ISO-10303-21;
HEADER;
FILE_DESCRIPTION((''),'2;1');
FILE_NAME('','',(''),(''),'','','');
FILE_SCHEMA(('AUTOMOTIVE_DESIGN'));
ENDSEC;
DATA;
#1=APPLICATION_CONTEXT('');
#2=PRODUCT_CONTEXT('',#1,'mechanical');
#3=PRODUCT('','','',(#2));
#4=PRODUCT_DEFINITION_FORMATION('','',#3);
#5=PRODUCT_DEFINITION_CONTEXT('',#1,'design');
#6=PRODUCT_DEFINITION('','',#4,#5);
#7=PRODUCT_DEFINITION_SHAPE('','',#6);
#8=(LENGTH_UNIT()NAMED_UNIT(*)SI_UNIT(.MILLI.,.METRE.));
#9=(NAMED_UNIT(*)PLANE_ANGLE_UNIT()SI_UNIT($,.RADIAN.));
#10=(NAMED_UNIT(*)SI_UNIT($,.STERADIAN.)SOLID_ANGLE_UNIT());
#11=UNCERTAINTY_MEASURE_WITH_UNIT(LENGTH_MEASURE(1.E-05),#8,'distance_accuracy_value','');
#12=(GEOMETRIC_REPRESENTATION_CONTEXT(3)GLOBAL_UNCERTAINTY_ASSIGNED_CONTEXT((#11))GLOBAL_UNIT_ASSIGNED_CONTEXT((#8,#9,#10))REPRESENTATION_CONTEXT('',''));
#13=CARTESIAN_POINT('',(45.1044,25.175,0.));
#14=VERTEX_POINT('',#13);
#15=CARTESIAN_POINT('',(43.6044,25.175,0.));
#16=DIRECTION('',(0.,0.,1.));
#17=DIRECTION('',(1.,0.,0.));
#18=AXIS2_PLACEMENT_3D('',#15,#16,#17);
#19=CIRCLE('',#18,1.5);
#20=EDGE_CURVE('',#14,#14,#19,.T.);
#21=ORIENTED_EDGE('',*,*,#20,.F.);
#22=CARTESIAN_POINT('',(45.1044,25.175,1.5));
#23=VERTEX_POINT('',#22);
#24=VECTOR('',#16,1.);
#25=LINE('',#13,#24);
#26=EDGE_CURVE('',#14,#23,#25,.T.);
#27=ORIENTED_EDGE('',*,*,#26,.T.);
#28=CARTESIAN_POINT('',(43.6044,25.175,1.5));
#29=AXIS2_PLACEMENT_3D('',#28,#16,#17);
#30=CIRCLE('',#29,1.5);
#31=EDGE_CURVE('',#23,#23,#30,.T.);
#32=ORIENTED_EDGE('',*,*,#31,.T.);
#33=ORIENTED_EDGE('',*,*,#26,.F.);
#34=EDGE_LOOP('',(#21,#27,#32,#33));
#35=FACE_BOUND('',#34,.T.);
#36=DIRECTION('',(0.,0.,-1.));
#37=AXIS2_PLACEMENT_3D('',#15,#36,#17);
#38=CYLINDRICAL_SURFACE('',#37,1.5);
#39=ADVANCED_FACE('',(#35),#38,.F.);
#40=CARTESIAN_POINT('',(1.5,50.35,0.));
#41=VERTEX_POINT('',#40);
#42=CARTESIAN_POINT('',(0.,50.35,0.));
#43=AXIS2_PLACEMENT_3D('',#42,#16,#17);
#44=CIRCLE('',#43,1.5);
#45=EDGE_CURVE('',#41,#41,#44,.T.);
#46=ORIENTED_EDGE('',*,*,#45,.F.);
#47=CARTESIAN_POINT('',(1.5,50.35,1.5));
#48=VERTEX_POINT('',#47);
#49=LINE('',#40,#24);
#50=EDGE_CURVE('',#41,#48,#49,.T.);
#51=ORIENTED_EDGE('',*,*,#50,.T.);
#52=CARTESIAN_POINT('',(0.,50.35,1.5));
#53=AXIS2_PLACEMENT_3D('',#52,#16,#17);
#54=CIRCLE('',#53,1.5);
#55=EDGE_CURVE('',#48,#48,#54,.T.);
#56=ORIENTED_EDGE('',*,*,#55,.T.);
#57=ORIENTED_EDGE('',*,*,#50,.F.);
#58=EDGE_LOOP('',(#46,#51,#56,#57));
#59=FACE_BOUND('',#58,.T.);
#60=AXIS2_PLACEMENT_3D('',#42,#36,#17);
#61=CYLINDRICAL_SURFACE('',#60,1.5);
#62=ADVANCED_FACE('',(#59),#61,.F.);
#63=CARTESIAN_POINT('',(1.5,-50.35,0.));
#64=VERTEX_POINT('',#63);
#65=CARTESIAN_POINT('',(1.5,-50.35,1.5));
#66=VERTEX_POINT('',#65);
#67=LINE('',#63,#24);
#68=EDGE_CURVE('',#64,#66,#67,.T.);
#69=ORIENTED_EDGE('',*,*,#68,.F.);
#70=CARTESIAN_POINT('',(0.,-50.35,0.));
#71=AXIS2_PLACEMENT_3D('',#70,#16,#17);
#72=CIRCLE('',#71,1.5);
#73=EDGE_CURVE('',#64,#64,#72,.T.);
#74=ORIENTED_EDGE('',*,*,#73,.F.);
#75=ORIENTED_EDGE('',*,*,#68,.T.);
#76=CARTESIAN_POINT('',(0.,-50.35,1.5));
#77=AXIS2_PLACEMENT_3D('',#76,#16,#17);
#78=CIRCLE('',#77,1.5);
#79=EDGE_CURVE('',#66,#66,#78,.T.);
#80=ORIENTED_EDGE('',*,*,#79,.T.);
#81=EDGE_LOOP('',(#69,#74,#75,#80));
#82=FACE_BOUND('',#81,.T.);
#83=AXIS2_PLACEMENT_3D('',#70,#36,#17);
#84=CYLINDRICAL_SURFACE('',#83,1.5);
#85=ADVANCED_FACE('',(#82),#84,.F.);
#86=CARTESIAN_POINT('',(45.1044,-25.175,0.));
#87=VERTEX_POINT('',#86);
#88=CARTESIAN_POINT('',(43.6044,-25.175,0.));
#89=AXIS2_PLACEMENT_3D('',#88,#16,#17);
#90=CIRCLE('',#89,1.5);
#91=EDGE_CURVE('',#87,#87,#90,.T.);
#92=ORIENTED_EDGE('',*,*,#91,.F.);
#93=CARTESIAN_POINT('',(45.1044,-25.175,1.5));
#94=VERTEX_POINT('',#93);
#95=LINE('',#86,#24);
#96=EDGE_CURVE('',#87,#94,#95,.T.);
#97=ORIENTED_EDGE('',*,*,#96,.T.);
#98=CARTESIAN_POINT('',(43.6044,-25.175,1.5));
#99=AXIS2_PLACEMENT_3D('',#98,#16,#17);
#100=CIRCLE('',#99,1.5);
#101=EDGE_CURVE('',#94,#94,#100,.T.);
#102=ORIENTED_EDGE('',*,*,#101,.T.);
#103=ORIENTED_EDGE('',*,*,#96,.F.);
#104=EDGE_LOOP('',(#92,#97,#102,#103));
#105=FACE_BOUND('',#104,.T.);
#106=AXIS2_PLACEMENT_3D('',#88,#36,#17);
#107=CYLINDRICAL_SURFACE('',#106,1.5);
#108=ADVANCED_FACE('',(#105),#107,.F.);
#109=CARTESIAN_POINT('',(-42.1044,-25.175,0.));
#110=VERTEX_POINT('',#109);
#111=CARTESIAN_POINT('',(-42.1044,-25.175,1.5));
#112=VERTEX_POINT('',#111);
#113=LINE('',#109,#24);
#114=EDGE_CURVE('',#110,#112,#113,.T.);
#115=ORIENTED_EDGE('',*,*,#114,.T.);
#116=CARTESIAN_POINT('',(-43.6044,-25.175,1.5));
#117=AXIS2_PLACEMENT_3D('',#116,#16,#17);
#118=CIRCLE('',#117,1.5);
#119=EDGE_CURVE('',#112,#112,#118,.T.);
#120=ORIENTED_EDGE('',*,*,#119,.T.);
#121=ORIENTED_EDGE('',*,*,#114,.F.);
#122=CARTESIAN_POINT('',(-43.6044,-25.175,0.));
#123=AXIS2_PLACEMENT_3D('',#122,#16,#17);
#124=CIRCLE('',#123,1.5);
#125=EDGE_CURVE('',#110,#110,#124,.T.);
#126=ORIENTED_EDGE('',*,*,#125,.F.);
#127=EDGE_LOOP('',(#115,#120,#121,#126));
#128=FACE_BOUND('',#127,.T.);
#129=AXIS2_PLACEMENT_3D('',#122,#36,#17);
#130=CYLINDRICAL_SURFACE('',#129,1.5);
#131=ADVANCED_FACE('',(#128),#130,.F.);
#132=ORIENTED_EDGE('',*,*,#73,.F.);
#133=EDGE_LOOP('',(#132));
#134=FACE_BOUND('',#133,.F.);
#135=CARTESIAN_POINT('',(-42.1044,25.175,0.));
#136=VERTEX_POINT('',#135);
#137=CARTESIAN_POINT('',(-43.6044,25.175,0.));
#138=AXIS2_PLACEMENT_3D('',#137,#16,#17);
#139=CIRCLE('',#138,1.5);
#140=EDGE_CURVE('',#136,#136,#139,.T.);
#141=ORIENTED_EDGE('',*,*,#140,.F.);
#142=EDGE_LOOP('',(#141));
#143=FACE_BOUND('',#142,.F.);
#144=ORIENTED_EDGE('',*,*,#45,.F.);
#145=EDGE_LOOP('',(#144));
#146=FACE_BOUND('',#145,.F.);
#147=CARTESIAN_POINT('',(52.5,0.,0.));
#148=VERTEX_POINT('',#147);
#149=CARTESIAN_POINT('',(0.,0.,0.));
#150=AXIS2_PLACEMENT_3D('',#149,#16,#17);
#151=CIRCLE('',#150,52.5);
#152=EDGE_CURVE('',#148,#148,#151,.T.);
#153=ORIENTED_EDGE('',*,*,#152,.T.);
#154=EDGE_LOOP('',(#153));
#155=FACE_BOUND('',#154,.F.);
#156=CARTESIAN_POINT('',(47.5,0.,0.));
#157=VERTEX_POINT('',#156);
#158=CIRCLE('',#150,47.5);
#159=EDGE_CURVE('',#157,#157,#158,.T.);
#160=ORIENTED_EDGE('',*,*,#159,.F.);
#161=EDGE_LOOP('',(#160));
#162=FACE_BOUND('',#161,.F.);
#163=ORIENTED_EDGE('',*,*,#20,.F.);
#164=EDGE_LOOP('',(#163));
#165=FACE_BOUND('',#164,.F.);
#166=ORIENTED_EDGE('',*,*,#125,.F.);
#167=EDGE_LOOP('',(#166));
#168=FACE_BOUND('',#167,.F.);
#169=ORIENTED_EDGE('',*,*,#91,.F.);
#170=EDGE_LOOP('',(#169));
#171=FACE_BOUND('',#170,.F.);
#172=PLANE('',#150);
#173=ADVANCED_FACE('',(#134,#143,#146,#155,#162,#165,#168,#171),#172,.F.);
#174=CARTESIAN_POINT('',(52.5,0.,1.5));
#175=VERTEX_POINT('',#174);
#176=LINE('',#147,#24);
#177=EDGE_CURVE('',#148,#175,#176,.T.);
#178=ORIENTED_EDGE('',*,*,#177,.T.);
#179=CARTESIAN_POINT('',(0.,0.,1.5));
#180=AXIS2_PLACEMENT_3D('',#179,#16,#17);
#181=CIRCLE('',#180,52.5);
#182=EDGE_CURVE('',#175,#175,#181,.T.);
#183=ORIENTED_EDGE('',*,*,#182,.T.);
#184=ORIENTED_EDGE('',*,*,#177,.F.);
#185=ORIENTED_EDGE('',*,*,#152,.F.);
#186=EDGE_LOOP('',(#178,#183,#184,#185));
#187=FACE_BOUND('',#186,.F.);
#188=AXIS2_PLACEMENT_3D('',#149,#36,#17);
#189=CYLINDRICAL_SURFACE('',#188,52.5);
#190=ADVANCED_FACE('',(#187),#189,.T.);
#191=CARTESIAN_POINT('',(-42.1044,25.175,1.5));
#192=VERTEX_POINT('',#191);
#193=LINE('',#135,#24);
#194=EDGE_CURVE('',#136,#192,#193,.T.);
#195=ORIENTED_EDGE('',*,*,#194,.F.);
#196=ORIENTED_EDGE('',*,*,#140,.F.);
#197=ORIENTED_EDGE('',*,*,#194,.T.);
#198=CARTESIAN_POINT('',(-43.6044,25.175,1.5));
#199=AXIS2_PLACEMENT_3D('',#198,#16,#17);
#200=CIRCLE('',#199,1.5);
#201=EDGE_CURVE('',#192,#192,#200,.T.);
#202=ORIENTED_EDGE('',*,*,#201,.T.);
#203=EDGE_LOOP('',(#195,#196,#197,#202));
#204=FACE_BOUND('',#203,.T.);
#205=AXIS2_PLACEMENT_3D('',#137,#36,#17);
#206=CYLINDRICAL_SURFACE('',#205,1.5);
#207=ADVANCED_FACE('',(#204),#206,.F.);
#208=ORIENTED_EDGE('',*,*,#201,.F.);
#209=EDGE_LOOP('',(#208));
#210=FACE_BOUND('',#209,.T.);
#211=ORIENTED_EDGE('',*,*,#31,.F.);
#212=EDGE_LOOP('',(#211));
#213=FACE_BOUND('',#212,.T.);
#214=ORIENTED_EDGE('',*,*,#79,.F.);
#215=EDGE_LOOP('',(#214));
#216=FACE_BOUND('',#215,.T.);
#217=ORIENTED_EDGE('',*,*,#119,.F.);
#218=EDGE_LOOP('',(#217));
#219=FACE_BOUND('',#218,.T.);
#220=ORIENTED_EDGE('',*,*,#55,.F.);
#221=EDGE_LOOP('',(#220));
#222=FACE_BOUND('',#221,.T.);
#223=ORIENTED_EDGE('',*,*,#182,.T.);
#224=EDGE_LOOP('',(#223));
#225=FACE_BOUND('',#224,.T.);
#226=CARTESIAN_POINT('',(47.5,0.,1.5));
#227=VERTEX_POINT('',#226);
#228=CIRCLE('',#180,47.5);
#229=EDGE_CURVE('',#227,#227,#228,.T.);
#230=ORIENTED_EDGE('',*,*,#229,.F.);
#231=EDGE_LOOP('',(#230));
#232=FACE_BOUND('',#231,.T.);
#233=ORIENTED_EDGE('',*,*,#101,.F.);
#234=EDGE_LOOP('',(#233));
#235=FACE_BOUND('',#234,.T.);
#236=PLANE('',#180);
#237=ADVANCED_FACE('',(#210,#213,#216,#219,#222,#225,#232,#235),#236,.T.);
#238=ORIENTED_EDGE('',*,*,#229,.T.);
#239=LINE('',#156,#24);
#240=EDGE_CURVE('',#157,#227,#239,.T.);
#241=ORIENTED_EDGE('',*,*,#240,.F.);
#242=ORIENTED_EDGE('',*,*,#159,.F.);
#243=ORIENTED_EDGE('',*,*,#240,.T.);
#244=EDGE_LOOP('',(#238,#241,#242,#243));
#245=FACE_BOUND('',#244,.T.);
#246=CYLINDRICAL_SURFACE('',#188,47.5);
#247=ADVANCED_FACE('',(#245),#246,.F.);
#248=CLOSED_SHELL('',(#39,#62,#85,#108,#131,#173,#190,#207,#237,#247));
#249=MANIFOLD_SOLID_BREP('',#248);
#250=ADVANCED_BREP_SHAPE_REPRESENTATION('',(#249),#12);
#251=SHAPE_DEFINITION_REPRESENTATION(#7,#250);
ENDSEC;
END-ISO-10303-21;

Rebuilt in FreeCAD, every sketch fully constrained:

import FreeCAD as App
import Part
import Sketcher

doc = App.newDocument("Part")
body = doc.addObject("PartDesign::Body", "Body")

# Sketch on XY plane
sketch1 = doc.addObject("Sketcher::SketchObject", "Sketch")
body.addObject(sketch1)
sketch1.AttachmentSupport = (doc.XY_Plane, [""])
sketch1.MapMode = "FlatFace"
sketch1.addGeometry(Part.Circle(App.Vector(0, 0, 0), App.Vector(0, 0, 1), 52.5), False)
sketch1.addGeometry(Part.Circle(App.Vector(-43.6, -25.2, 0), App.Vector(0, 0, 1), 1.5), False)
sketch1.addGeometry(Part.Circle(App.Vector(0, -50.4, 0), App.Vector(0, 0, 1), 1.5), False)
sketch1.addGeometry(Part.Circle(App.Vector(43.6, -25.2, 0), App.Vector(0, 0, 1), 1.5), False)
sketch1.addGeometry(Part.Circle(App.Vector(-43.6, 25.2, 0), App.Vector(0, 0, 1), 1.5), False)
sketch1.addGeometry(Part.Circle(App.Vector(0, 0, 0), App.Vector(0, 0, 1), 47.5), False)
sketch1.addGeometry(Part.Circle(App.Vector(43.6, 25.2, 0), App.Vector(0, 0, 1), 1.5), False)
sketch1.addGeometry(Part.Circle(App.Vector(0, 50.4, 0), App.Vector(0, 0, 1), 1.5), False)
sketch1.addConstraint(Sketcher.Constraint("Coincident", 0, 3, -1, 1))
sketch1.addConstraint(Sketcher.Constraint("Coincident", 5, 3, -1, 1))
sketch1.addConstraint(Sketcher.Constraint("Equal", 1, 2))
sketch1.addConstraint(Sketcher.Constraint("Equal", 2, 3))
sketch1.addConstraint(Sketcher.Constraint("Equal", 3, 4))
sketch1.addConstraint(Sketcher.Constraint("Equal", 4, 6))
sketch1.addConstraint(Sketcher.Constraint("Equal", 6, 7))
sketch1.addConstraint(Sketcher.Constraint("Symmetric", 3, 3, 4, 3, -1, 1))
sketch1.addConstraint(Sketcher.Constraint("Symmetric", 1, 3, 6, 3, -1, 1))
sketch1.addConstraint(Sketcher.Constraint("Symmetric", 2, 3, 7, 3, -1, 1))
sketch1.addConstraint(Sketcher.Constraint("Symmetric", 1, 3, 3, 3, -2))
sketch1.addConstraint(Sketcher.Constraint("PointOnObject", 2, 3, -2))
sketch1.addConstraint(Sketcher.Constraint("Diameter", 0, 105.0))
sketch1.addConstraint(Sketcher.Constraint("Diameter", 1, 3.0))
sketch1.addConstraint(Sketcher.Constraint("Diameter", 5, 95.0))
sketch1.addConstraint(Sketcher.Constraint("DistanceY", 2, 3, -1, 1, 50.35))
sketch1.addConstraint(Sketcher.Constraint("DistanceY", 1, 3, 4, 3, 50.35))
sketch1.addConstraint(Sketcher.Constraint("DistanceX", 1, 3, -1, 1, 43.6044))
pad1 = doc.addObject("PartDesign::Pad", "Pad")
body.addObject(pad1)
pad1.Profile = sketch1
pad1.Length = 1.5

doc.recompute()
